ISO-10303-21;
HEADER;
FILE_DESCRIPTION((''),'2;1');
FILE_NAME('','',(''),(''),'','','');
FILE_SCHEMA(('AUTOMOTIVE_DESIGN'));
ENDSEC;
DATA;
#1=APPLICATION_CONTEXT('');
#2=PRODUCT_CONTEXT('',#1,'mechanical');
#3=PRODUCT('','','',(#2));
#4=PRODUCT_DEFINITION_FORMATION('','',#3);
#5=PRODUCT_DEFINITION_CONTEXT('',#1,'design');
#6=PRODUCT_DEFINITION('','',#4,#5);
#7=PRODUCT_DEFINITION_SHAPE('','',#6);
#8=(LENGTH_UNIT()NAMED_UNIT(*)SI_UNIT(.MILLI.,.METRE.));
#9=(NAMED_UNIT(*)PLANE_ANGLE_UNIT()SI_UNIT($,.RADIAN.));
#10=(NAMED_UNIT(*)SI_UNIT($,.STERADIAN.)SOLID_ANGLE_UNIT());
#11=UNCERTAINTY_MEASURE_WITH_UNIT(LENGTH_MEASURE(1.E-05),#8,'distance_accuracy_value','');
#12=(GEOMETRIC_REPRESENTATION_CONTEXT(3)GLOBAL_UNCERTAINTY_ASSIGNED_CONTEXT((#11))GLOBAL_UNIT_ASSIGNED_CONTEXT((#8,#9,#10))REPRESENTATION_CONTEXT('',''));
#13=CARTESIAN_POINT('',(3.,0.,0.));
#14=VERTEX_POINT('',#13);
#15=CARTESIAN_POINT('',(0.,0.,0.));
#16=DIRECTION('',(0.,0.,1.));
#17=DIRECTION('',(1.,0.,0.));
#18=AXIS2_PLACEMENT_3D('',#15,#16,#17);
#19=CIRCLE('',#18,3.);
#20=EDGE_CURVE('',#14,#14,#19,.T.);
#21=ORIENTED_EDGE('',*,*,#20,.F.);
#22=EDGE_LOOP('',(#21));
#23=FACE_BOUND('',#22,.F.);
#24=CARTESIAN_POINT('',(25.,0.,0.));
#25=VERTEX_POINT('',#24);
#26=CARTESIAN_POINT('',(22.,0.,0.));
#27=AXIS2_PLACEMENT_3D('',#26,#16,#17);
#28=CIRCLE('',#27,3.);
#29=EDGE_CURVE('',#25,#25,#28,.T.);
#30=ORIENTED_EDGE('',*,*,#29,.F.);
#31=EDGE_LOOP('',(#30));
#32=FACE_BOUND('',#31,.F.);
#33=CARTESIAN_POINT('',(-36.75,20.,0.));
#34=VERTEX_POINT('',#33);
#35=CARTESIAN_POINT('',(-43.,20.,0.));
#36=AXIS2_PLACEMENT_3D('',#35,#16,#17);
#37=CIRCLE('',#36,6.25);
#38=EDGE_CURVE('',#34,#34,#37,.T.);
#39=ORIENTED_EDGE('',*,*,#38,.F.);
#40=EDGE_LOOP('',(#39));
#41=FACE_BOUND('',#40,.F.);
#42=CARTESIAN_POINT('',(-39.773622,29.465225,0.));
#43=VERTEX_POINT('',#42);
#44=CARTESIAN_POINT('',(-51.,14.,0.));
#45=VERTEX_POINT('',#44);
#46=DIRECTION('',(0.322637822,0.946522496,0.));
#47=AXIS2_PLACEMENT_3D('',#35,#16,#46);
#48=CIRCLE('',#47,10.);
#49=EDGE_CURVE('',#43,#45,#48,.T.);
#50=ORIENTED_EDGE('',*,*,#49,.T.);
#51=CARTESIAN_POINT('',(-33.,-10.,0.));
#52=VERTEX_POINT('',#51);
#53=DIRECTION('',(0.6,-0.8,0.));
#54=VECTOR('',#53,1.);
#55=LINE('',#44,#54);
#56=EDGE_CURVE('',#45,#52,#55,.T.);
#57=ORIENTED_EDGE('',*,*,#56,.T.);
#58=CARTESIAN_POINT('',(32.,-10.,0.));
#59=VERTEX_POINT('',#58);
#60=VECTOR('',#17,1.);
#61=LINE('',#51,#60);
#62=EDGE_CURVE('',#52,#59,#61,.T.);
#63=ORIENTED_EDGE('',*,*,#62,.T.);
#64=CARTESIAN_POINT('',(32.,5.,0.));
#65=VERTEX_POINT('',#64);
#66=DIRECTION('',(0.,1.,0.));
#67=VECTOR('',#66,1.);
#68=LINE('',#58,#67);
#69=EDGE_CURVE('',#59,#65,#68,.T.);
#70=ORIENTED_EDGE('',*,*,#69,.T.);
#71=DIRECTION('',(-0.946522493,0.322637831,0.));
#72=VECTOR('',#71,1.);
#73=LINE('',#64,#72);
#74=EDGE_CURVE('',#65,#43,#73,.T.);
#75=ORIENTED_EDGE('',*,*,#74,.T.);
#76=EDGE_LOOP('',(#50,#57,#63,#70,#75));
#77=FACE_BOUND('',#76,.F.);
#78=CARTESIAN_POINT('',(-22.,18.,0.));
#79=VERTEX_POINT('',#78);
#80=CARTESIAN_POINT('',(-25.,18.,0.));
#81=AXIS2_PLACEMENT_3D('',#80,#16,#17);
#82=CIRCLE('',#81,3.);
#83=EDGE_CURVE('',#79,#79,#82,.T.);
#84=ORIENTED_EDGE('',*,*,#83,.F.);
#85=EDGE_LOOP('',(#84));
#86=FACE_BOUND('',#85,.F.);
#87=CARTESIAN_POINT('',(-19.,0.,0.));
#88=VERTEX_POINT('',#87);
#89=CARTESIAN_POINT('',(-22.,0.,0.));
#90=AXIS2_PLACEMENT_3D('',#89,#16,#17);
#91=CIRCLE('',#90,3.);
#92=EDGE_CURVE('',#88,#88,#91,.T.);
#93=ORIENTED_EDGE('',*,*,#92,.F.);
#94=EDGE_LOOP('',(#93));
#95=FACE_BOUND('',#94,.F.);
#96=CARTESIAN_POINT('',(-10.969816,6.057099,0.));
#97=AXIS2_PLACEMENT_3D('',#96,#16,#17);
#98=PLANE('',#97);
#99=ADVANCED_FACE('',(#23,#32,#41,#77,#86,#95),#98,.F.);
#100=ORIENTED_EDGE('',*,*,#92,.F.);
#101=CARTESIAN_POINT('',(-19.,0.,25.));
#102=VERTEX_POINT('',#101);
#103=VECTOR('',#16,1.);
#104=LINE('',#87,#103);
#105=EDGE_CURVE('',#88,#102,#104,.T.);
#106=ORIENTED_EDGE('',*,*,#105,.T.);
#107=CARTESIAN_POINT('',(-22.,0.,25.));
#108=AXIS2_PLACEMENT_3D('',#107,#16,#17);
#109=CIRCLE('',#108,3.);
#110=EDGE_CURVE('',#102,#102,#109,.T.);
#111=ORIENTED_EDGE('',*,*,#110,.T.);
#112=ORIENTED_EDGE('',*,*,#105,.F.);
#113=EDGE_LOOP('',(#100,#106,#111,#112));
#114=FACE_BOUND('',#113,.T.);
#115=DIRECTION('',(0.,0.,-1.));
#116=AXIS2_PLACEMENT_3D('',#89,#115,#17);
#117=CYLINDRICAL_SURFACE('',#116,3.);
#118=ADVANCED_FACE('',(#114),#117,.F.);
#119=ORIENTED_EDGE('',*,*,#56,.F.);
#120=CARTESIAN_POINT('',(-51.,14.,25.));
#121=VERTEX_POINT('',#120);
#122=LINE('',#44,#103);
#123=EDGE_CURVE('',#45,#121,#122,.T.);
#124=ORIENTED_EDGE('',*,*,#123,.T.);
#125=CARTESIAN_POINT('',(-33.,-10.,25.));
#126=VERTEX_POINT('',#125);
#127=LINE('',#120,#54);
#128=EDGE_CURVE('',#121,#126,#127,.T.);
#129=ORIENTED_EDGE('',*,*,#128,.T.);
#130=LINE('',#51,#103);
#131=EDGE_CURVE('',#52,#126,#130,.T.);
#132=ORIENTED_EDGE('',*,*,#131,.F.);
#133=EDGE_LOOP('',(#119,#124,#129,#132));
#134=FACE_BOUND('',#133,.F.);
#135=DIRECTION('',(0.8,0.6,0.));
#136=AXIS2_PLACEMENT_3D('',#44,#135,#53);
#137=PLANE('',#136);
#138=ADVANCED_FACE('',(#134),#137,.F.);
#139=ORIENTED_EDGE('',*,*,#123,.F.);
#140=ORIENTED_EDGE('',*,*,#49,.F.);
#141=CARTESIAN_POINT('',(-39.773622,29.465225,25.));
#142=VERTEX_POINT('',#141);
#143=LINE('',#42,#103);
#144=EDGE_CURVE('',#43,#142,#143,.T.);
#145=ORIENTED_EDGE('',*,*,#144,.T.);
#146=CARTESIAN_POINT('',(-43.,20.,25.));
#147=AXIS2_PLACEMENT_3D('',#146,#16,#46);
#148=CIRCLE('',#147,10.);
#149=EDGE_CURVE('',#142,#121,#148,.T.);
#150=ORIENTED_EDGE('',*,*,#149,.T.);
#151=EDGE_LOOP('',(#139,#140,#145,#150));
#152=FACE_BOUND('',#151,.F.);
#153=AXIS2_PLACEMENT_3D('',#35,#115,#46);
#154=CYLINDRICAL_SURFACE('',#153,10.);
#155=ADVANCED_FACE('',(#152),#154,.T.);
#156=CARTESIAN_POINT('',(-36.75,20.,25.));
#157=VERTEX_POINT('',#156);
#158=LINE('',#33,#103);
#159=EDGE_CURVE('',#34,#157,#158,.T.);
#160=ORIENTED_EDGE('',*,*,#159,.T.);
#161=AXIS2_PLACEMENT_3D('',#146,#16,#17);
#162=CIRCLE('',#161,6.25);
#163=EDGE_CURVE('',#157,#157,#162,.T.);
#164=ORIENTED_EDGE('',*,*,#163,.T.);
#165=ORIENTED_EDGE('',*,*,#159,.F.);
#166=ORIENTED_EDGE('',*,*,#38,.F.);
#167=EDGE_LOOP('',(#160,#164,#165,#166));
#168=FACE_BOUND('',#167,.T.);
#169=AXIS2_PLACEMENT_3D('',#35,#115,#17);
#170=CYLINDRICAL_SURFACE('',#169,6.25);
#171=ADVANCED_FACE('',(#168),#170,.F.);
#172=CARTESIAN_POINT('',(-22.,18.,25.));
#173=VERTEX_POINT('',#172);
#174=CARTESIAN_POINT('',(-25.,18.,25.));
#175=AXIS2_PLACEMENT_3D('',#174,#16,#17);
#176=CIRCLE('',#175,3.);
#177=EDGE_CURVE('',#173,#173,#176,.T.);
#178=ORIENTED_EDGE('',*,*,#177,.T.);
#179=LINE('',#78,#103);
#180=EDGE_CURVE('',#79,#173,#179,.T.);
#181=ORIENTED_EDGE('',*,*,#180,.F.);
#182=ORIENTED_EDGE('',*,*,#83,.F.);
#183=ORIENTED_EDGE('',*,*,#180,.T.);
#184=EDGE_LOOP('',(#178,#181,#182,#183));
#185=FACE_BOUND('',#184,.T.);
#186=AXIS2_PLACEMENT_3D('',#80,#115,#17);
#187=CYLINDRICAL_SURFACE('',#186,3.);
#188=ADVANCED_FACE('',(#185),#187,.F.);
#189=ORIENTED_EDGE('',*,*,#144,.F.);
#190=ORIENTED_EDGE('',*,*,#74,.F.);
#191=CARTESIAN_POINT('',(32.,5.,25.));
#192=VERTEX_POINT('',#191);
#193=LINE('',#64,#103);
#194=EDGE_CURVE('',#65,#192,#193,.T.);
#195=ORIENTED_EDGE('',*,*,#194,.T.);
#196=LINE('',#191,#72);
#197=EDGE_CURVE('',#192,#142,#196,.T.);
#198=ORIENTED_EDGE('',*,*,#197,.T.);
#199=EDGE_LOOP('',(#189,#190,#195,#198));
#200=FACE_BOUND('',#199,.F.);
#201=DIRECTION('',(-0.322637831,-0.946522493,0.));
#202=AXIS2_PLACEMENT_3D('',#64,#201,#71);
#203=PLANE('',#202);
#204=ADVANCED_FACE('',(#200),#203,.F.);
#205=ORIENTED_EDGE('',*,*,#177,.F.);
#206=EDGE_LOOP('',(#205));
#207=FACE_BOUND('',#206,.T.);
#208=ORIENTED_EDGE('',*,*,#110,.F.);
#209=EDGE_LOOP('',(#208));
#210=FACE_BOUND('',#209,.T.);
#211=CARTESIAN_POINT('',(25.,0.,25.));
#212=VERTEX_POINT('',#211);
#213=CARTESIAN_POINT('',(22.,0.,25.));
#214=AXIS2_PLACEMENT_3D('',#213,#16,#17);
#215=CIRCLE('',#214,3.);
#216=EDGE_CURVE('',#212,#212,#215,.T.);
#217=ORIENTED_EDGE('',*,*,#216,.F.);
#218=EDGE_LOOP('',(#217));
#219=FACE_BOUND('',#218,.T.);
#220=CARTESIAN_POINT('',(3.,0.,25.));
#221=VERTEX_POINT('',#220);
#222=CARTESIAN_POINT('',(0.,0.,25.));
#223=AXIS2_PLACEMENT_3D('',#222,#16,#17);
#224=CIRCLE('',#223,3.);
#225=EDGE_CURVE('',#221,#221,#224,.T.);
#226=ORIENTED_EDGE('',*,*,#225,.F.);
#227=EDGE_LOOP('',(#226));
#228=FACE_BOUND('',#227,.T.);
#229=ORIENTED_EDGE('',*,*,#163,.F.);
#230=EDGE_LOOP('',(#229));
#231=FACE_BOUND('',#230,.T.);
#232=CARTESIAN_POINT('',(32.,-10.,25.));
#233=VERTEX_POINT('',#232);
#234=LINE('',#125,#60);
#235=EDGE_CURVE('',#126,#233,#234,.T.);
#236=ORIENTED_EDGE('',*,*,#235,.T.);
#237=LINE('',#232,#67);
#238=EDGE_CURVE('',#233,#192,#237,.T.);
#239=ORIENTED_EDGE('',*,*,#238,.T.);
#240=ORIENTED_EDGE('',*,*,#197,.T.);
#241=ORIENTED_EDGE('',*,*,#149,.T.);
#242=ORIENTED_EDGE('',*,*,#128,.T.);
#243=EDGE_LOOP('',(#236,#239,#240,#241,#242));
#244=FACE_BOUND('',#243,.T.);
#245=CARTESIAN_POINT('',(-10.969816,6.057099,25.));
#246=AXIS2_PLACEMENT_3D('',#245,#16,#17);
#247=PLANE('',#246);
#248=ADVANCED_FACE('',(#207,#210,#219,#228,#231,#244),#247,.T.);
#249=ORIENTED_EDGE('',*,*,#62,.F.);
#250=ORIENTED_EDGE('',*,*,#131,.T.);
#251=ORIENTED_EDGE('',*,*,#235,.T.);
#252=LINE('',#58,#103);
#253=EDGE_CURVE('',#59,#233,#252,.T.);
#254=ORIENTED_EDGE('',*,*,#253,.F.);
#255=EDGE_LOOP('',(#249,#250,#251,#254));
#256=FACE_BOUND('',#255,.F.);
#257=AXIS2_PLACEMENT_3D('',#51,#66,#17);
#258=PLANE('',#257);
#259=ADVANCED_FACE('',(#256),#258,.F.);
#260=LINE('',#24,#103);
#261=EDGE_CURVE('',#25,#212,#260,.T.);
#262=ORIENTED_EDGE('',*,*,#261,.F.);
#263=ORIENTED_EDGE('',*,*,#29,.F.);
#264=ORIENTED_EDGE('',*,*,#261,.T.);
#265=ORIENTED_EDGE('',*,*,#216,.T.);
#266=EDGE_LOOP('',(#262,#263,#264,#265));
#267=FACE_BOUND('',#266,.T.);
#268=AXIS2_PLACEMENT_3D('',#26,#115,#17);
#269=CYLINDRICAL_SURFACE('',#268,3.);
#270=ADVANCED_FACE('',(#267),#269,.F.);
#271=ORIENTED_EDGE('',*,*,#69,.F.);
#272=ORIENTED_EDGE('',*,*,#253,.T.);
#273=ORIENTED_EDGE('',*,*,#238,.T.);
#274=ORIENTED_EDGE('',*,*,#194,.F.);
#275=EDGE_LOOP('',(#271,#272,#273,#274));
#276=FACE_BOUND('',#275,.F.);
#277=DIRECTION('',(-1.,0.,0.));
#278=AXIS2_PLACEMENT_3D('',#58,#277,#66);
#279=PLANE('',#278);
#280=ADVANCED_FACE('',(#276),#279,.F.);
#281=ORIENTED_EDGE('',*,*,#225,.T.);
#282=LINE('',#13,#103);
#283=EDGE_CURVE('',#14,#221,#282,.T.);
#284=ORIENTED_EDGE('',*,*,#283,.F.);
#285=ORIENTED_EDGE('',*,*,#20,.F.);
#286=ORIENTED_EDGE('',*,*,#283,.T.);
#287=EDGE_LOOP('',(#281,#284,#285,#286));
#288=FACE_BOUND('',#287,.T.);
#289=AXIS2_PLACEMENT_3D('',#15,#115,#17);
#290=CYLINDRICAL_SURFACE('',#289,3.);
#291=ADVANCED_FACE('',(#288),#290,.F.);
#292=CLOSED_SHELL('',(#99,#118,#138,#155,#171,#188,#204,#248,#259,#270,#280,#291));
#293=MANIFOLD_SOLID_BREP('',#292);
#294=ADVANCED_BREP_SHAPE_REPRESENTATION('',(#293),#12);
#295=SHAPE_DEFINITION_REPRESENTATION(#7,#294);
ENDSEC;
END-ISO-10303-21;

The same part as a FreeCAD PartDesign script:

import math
import FreeCAD as App
import Part
import Sketcher
from FreeCAD import Vector
Q = App.Units.Quantity

doc = App.newDocument("Part")
body = doc.addObject("PartDesign::Body", "Body")

sketch1 = body.newObject("Sketcher::SketchObject", "Sketch")
sketch1.AttachmentSupport = (doc.getObject("XY_Plane"), [""])
sketch1.MapMode = "FlatFace"
sketch1.addGeometry(Part.LineSegment(Vector(32, 5, 0), Vector(-39.8, 29.5, 0)), False)
sketch1.addGeometry(Part.ArcOfCircle(Part.Circle(Vector(-43, 20, 0), Vector(0, 0, 1), 10), math.radians(71), math.radians(217)), False)
sketch1.addGeometry(Part.LineSegment(Vector(-51, 14, 0), Vector(-33, -10, 0)), False)
sketch1.addGeometry(Part.LineSegment(Vector(-33, -10, 0), Vector(32, -10, 0)), False)
sketch1.addGeometry(Part.LineSegment(Vector(32, -10, 0), Vector(32, 5, 0)), False)
sketch1.addGeometry(Part.Circle(Vector(-22, 0, 0), Vector(0, 0, 1), 3), False)
sketch1.addGeometry(Part.Circle(Vector(0, 0, 0), Vector(0, 0, 1), 3), False)
sketch1.addGeometry(Part.Circle(Vector(22, 0, 0), Vector(0, 0, 1), 3), False)
sketch1.addGeometry(Part.Circle(Vector(-25, 18, 0), Vector(0, 0, 1), 3), False)
sketch1.addGeometry(Part.Circle(Vector(-43, 20, 0), Vector(0, 0, 1), 6.2), False)
sketch1.addConstraint(Sketcher.Constraint("Tangent", 0, 2, 1, 1))
sketch1.addConstraint(Sketcher.Constraint("Tangent", 1, 2, 2, 1))
sketch1.addConstraint(Sketcher.Constraint("Coincident", 2, 2, 3, 1))
sketch1.addConstraint(Sketcher.Constraint("Coincident", 3, 2, 4, 1))
sketch1.addConstraint(Sketcher.Constraint("Coincident", 4, 2, 0, 1))
sketch1.addConstraint(Sketcher.Constraint("Horizontal", 3))
sketch1.addConstraint(Sketcher.Constraint("Vertical", 4))
sketch1.addConstraint(Sketcher.Constraint("Coincident", 6, 3, -1, 1))
sketch1.addConstraint(Sketcher.Constraint("Coincident", 9, 3, 1, 3))
sketch1.addConstraint(Sketcher.Constraint("Equal", 5, 6))
sketch1.addConstraint(Sketcher.Constraint("Equal", 6, 7))
sketch1.addConstraint(Sketcher.Constraint("Equal", 7, 8))
sketch1.addConstraint(Sketcher.Constraint("Symmetric", 5, 3, 7, 3, -1, 1))
sketch1.addConstraint(Sketcher.Constraint("PointOnObject", 5, 3, -1))
sketch1.addConstraint(Sketcher.Constraint("Diameter", 5, Q("6 mm")))
sketch1.addConstraint(Sketcher.Constraint("Radius", 1, Q("10 mm")))
sketch1.addConstraint(Sketcher.Constraint("Diameter", 9, Q("12.5 mm")))
sketch1.addConstraint(Sketcher.Constraint("DistanceX", 3, 1, 3, 2, Q("65 mm")))
sketch1.addConstraint(Sketcher.Constraint("DistanceY", 4, 1, 4, 2, Q("15 mm")))
sketch1.addConstraint(Sketcher.Constraint("Distance", 2, Q("30 mm")))
sketch1.addConstraint(Sketcher.Constraint("DistanceX", 1, 3, -1, 1, Q("43 mm")))
sketch1.addConstraint(Sketcher.Constraint("DistanceY", -1, 1, 1, 3, Q("20 mm")))
sketch1.addConstraint(Sketcher.Constraint("DistanceX", 5, 3, -1, 1, Q("22 mm")))
sketch1.addConstraint(Sketcher.Constraint("DistanceX", 8, 3, -1, 1, Q("25 mm")))
sketch1.addConstraint(Sketcher.Constraint("DistanceY", -1, 1, 8, 3, Q("18 mm")))
sketch1.addConstraint(Sketcher.Constraint("DistanceX", 1, 2, -1, 1, Q("51 mm")))
pad1 = body.newObject("PartDesign::Pad", "Pad")
pad1.Profile = sketch1
pad1.Length = 25

doc.recompute()
